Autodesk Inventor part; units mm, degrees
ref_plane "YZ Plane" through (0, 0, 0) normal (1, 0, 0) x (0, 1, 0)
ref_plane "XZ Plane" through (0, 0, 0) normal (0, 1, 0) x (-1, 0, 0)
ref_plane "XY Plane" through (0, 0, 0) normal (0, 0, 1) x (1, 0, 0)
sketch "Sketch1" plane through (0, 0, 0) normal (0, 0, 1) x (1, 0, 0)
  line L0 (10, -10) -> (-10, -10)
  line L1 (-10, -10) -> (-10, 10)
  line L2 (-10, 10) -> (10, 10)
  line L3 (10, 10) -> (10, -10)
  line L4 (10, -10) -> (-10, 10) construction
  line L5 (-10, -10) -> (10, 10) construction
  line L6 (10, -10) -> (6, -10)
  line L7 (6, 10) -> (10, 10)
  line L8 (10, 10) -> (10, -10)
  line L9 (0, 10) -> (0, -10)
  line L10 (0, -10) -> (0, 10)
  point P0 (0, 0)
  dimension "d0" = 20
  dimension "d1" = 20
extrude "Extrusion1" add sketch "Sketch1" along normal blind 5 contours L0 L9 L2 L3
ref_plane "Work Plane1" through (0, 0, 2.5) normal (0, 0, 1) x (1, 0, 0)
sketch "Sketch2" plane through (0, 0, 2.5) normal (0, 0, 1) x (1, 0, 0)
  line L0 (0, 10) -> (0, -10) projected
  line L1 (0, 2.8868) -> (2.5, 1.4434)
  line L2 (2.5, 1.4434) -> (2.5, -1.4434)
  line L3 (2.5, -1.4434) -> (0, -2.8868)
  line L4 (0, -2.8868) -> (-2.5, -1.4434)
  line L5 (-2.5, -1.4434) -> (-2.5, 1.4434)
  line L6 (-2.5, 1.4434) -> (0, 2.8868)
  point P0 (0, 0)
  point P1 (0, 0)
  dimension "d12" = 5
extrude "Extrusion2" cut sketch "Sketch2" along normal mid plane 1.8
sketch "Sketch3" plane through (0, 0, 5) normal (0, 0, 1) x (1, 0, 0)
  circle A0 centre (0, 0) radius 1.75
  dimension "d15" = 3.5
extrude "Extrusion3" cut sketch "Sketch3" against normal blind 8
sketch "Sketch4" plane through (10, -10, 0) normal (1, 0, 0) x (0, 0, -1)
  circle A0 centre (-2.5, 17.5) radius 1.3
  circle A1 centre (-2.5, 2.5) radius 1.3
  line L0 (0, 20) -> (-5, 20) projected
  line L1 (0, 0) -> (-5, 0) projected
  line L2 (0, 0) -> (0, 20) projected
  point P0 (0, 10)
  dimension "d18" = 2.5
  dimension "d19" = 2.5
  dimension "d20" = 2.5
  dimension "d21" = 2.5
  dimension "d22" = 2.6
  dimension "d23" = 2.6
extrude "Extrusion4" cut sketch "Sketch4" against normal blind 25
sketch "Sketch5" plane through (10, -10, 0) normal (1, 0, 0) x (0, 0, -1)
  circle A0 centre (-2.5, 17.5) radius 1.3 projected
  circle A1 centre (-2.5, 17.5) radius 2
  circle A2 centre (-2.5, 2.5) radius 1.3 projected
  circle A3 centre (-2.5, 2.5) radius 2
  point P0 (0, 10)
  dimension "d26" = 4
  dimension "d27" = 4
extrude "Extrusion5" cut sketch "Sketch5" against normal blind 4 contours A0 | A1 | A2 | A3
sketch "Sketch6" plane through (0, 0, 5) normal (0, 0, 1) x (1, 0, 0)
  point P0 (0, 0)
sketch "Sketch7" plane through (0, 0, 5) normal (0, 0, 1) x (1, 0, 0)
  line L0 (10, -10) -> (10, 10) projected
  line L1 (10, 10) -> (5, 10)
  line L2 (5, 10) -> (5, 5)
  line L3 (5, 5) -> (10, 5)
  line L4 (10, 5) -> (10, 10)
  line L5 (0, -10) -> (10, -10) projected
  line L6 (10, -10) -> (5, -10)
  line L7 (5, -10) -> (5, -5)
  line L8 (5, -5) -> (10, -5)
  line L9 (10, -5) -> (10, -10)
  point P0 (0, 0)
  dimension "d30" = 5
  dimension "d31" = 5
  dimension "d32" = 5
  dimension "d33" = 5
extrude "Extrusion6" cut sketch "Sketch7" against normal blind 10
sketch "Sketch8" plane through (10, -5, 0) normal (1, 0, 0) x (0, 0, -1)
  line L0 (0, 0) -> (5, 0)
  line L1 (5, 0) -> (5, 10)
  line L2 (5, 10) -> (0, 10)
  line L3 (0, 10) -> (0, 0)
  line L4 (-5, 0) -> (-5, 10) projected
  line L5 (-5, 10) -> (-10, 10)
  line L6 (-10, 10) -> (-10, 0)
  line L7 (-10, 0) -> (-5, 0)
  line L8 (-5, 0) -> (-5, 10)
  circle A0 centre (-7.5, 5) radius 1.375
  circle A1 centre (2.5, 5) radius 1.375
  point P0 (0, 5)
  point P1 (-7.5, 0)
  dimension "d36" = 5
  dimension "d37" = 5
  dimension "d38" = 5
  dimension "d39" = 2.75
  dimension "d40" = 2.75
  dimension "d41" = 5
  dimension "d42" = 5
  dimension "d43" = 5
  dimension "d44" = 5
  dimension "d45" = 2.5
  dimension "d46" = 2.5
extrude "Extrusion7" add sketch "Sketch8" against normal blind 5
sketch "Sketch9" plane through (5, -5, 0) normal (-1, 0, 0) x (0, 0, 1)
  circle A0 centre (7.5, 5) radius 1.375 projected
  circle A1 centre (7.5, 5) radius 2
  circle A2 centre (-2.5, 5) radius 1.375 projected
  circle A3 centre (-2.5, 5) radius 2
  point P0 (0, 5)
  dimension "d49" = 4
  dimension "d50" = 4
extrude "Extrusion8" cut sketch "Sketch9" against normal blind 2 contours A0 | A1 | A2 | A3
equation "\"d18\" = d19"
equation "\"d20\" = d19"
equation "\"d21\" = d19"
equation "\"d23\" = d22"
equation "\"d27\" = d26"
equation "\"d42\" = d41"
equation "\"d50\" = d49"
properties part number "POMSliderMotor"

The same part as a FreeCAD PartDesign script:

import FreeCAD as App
import Part
import Sketcher
Q = App.Units.Quantity


def add_polygon(sketch, points):
    """Adds a closed chain of lines whose ends are joined by coincident constraints."""
    first, n = sketch.GeometryCount, len(points)
    for a, b in zip(points, points[1:] + points[:1]):
        sketch.addGeometry(Part.LineSegment(App.Vector(*a, 0), App.Vector(*b, 0)), False)
    for i in range(n):
        sketch.addConstraint(Sketcher.Constraint("Coincident", first + i, 2, first + (i + 1) % n, 1))

doc = App.newDocument("Part")
body = doc.addObject("PartDesign::Body", "Body")

sketch1 = body.newObject("Sketcher::SketchObject", "Sketch")
sketch1.AttachmentSupport = (doc.getObject("XY_Plane"), [""])
sketch1.MapMode = "FlatFace"
add_polygon(sketch1, [(0, -10), (10, -10), (10, 10), (0, 10)])
sketch1.addConstraint([
    Sketcher.Constraint("Horizontal", 0),
    Sketcher.Constraint("Vertical", 1),
    Sketcher.Constraint("Horizontal", 2),
    Sketcher.Constraint("Vertical", 3),
    Sketcher.Constraint("Symmetric", 2, 2, 3, 2, -1, 1),
    Sketcher.Constraint("DistanceY", 1, 1, 1, 2, 20.0),
    Sketcher.Constraint("DistanceX", 0, 1, 0, 2, 10.0),
])
pad1 = body.newObject("PartDesign::Pad", "Pad")
pad1.Profile = sketch1
pad1.Length = 5

sketch2 = body.newObject("Sketcher::SketchObject", "Sketch001")
sketch2.AttachmentSupport = (doc.getObject("XY_Plane"), [""])
sketch2.MapMode = "FlatFace"
sketch2.AttachmentOffset = App.Placement(App.Vector(0, 0, 2.5), App.Rotation())
add_polygon(sketch2, [(2.5, 1.4), (0, 2.9), (-2.5, 1.4), (-2.5, -1.4), (0, -2.9), (2.5, -1.4)])
sketch2.addConstraint([
    Sketcher.Constraint("Vertical", 2),
    Sketcher.Constraint("Vertical", 5),
    Sketcher.Constraint("Symmetric", 0, 2, 3, 2, -1, 1),
    Sketcher.Constraint("Symmetric", 1, 2, 4, 2, -1, 1),
    Sketcher.Constraint("PointOnObject", 0, 2, -2),
    Sketcher.Constraint("Parallel", 0, 3),
    Sketcher.Constraint("Horizontal", 2, 2, 4, 2),
    Sketcher.Constraint("DistanceX", 2, 2, 4, 2, 5.0),
    Sketcher.Constraint("Angle", 0, Q("149.9996 deg")),
    Sketcher.Constraint("DistanceY", 2, 2, 2, 1, 2.8868),
])
pocket1 = body.newObject("PartDesign::Pocket", "Pocket")
pocket1.Profile = sketch2
pocket1.Length = 1.8
pocket1.Midplane = True

sketch3 = body.newObject("Sketcher::SketchObject", "Sketch002")
sketch3.AttachmentSupport = (doc.getObject("XY_Plane"), [""])
sketch3.MapMode = "FlatFace"
sketch3.AttachmentOffset = App.Placement(App.Vector(0, 0, 5), App.Rotation())
sketch3.addGeometry(Part.Circle(App.Vector(0, 0, 0), App.Vector(0, 0, 1), 1.8), False)
sketch3.addConstraint([
    Sketcher.Constraint("Coincident", 0, 3, -1, 1),
    Sketcher.Constraint("Diameter", 0, 3.5),
])
pocket2 = body.newObject("PartDesign::Pocket", "Pocket001")
pocket2.Profile = sketch3
pocket2.Length = 8

sketch4 = body.newObject("Sketcher::SketchObject", "Sketch003")
sketch4.AttachmentSupport = (doc.getObject("YZ_Plane"), [""])
sketch4.MapMode = "FlatFace"
sketch4.AttachmentOffset = App.Placement(App.Vector(0, 0, 10), App.Rotation())
sketch4.addGeometry([
    Part.Circle(App.Vector(7.5, 2.5, 0), App.Vector(0, 0, 1), 1.3),
    Part.Circle(App.Vector(-7.5, 2.5, 0), App.Vector(0, 0, 1), 1.3),
], False)
sketch4.addConstraint([
    Sketcher.Constraint("Equal", 0, 1),
    Sketcher.Constraint("Symmetric", 0, 3, 1, 3, -2),
    Sketcher.Constraint("Diameter", 0, 2.6),
    Sketcher.Constraint("DistanceY", -1, 1, 0, 3, 2.5),
    Sketcher.Constraint("DistanceX", 1, 3, 0, 3, 15.0),
])
pocket3 = body.newObject("PartDesign::Pocket", "Pocket002")
pocket3.Profile = sketch4
pocket3.Length = 25

sketch5 = body.newObject("Sketcher::SketchObject", "Sketch004")
sketch5.AttachmentSupport = (doc.getObject("YZ_Plane"), [""])
sketch5.MapMode = "FlatFace"
sketch5.AttachmentOffset = App.Placement(App.Vector(0, 0, 10), App.Rotation())
sketch5.addGeometry([
    Part.Circle(App.Vector(7.5, 2.5, 0), App.Vector(0, 0, 1), 2),
    Part.Circle(App.Vector(-7.5, 2.5, 0), App.Vector(0, 0, 1), 2),
], False)
sketch5.addConstraint([
    Sketcher.Constraint("Equal", 0, 1),
    Sketcher.Constraint("Symmetric", 0, 3, 1, 3, -2),
    Sketcher.Constraint("Diameter", 0, 4.0),
    Sketcher.Constraint("DistanceX", 1, 3, 0, 3, 15.0),
    Sketcher.Constraint("DistanceY", -1, 1, 0, 3, 2.5),
])
pocket4 = body.newObject("PartDesign::Pocket", "Pocket003")
pocket4.Profile = sketch5
pocket4.Length = 4

sketch6 = body.newObject("Sketcher::SketchObject", "Sketch005")
sketch6.AttachmentSupport = (doc.getObject("XY_Plane"), [""])
sketch6.MapMode = "FlatFace"
sketch6.AttachmentOffset = App.Placement(App.Vector(0, 0, 5), App.Rotation())
add_polygon(sketch6, [(5, -10), (10, -10), (10, -5), (5, -5)])
add_polygon(sketch6, [(5, 5), (10, 5), (10, 10), (5, 10)])
sketch6.addConstraint([
    Sketcher.Constraint("Horizontal", 0),
    Sketcher.Constraint("Vertical", 1),
    Sketcher.Constraint("Horizontal", 2),
    Sketcher.Constraint("Vertical", 3),
    Sketcher.Constraint("Horizontal", 4),
    Sketcher.Constraint("Vertical", 5),
    Sketcher.Constraint("Horizontal", 6),
    Sketcher.Constraint("Vertical", 7),
    Sketcher.Constraint("Symmetric", 1, 2, 4, 2, -1),
    Sketcher.Constraint("Symmetric", 3, 2, 6, 2, -1),
    Sketcher.Constraint("Equal", 6, 1),
    Sketcher.Constraint("DistanceX", 0, 1, 0, 2, 5.0),
    Sketcher.Constraint("DistanceY", 1, 2, -1, 1, 5.0),
    Sketcher.Constraint("DistanceX", -1, 1, 2, 2, 5.0),
])
pocket5 = body.newObject("PartDesign::Pocket", "Pocket004")
pocket5.Profile = sketch6
pocket5.Length = 10

sketch7 = body.newObject("Sketcher::SketchObject", "Sketch006")
sketch7.AttachmentSupport = (doc.getObject("YZ_Plane"), [""])
sketch7.MapMode = "FlatFace"
sketch7.AttachmentOffset = App.Placement(App.Vector(0, 0, 10), App.Rotation())
add_polygon(sketch7, [(5, 0), (-5, 0), (-5, -5), (5, -5)])
sketch7.addGeometry(Part.Circle(App.Vector(0, -2.5, 0), App.Vector(0, 0, 1), 1.4), False)
add_polygon(sketch7, [(-5, 10), (-5, 5), (5, 5), (5, 10)])
sketch7.addGeometry(Part.Circle(App.Vector(0, 7.5, 0), App.Vector(0, 0, 1), 1.4), False)
sketch7.addConstraint([
    Sketcher.Constraint("Horizontal", 0),
    Sketcher.Constraint("Vertical", 1),
    Sketcher.Constraint("Horizontal", 2),
    Sketcher.Constraint("Vertical", 3),
    Sketcher.Constraint("Vertical", 5),
    Sketcher.Constraint("Horizontal", 6),
    Sketcher.Constraint("Vertical", 7),
    Sketcher.Constraint("Horizontal", 8),
    Sketcher.Constraint("Equal", 4, 9),
    Sketcher.Constraint("Symmetric", 0, 2, 3, 2, -1, 1),
    Sketcher.Constraint("Symmetric", 2, 2, 5, 2, -1, 1),
    Sketcher.Constraint("PointOnObject", 4, 3, -2),
    Sketcher.Constraint("PointOnObject", 9, 3, -2),
    Sketcher.Constraint("Vertical", 3, 2, 6, 2),
    Sketcher.Constraint("Equal", 3, 5),
    Sketcher.Constraint("Diameter", 4, 2.75),
    Sketcher.Constraint("DistanceY", 1, 2, 1, 1, 5.0),
    Sketcher.Constraint("DistanceX", 0, 2, -1, 1, 5.0),
    Sketcher.Constraint("DistanceY", 4, 3, -1, 1, 2.5),
    Sketcher.Constraint("DistanceY", 5, 2, 9, 3, 2.5),
])
pad2 = body.newObject("PartDesign::Pad", "Pad001")
pad2.Profile = sketch7
pad2.Length = 5
pad2.Reversed = True

sketch8 = body.newObject("Sketcher::SketchObject", "Sketch007")
sketch8.AttachmentSupport = (doc.getObject("YZ_Plane"), [""])
sketch8.MapMode = "FlatFace"
sketch8.AttachmentOffset = App.Placement(App.Vector(0, 0, 5), App.Rotation())
sketch8.addGeometry([
    Part.Circle(App.Vector(0, 7.5, 0), App.Vector(0, 0, 1), 2),
    Part.Circle(App.Vector(0, -2.5, 0), App.Vector(0, 0, 1), 2),
], False)
sketch8.addConstraint([
    Sketcher.Constraint("Equal", 0, 1),
    Sketcher.Constraint("PointOnObject", 0, 3, -2),
    Sketcher.Constraint("PointOnObject", 1, 3, -2),
    Sketcher.Constraint("Diameter", 0, 4.0),
    Sketcher.Constraint("DistanceY", 1, 3, 0, 3, 10.0),
    Sketcher.Constraint("DistanceY", -1, 1, 0, 3, 7.5),
])
pocket6 = body.newObject("PartDesign::Pocket", "Pocket005")
pocket6.Profile = sketch8
pocket6.Length = 2
pocket6.Reversed = True

doc.recompute()
